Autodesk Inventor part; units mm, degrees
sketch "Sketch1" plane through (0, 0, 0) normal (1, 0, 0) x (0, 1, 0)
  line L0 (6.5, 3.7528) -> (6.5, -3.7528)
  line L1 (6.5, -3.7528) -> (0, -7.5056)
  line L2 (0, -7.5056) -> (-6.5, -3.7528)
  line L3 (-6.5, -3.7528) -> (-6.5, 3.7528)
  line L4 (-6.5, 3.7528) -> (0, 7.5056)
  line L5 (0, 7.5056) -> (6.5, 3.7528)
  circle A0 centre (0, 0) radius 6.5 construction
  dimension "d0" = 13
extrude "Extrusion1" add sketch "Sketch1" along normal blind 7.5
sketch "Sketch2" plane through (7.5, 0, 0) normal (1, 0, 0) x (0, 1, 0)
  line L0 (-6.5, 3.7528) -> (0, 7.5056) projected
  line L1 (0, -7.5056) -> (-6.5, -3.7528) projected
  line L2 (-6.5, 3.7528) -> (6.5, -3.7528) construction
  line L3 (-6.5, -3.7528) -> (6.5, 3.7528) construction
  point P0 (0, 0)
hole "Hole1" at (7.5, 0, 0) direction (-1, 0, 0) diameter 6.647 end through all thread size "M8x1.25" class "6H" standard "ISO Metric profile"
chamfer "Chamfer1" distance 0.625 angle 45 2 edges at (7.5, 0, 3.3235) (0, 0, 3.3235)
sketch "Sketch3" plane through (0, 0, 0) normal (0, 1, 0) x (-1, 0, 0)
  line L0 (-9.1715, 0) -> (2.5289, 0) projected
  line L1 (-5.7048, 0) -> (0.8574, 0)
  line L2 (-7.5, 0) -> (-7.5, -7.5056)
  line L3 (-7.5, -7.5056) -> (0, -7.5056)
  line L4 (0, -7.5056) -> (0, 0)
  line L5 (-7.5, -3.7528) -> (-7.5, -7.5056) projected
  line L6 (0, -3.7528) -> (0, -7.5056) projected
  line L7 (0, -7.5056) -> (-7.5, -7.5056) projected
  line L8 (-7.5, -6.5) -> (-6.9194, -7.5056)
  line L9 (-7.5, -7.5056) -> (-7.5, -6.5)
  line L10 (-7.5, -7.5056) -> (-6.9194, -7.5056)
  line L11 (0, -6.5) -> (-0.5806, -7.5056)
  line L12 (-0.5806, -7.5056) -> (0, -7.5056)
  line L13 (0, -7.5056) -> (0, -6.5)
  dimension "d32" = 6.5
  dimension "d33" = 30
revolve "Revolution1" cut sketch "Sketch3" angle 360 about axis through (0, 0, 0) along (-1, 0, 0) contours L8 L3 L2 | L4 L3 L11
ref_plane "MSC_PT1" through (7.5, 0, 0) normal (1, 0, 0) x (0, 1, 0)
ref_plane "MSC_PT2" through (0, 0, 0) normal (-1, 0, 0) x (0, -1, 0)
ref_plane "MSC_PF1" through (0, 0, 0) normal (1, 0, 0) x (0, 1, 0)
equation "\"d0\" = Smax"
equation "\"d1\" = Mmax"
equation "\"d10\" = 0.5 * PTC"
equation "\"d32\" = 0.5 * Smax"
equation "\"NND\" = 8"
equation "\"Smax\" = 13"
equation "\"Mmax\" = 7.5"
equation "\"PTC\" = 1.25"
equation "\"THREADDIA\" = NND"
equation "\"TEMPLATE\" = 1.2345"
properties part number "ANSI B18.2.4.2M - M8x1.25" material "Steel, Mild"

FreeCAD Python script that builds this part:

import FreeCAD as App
import Part
import Sketcher

V = App.Vector
Q = App.Units.Quantity


def edges_at(feature, points):
    """Names of the edges that pass closest to the given points."""
    edges = feature.Shape.Edges
    near = lambda p: min(range(len(edges)), key=lambda i: edges[i].distToShape(Part.Vertex(*p))[0])
    return sorted({f"Edge{near(p) + 1}" for p in points})

doc = App.newDocument("Part")
body = doc.addObject("PartDesign::Body", "Body")

# Sketch on YZ plane
sketch1 = body.newObject("Sketcher::SketchObject", "Sketch")
sketch1.AttachmentSupport = (doc.getObject("YZ_Plane"), [""])
sketch1.MapMode = "FlatFace"
sketch1.addGeometry(Part.LineSegment(V(6, -4, 0), V(6, 4, 0)), False)
sketch1.addGeometry(Part.LineSegment(V(6, 4, 0), V(0, 8, 0)), False)
sketch1.addGeometry(Part.LineSegment(V(0, 8, 0), V(-6, 4, 0)), False)
sketch1.addGeometry(Part.LineSegment(V(-6, 4, 0), V(-6, -4, 0)), False)
sketch1.addGeometry(Part.LineSegment(V(-6, -4, 0), V(0, -8, 0)), False)
sketch1.addGeometry(Part.LineSegment(V(0, -8, 0), V(6, -4, 0)), False)
sketch1.addConstraint(Sketcher.Constraint("Coincident", 0, 2, 1, 1))
sketch1.addConstraint(Sketcher.Constraint("Coincident", 1, 2, 2, 1))
sketch1.addConstraint(Sketcher.Constraint("Coincident", 2, 2, 3, 1))
sketch1.addConstraint(Sketcher.Constraint("Coincident", 3, 2, 4, 1))
sketch1.addConstraint(Sketcher.Constraint("Coincident", 4, 2, 5, 1))
sketch1.addConstraint(Sketcher.Constraint("Coincident", 5, 2, 0, 1))
sketch1.addConstraint(Sketcher.Constraint("Vertical", 0))
sketch1.addConstraint(Sketcher.Constraint("Vertical", 3))
sketch1.addConstraint(Sketcher.Constraint("Symmetric", 0, 2, 3, 2, -1, 1))
sketch1.addConstraint(Sketcher.Constraint("Symmetric", 1, 2, 4, 2, -1, 1))
sketch1.addConstraint(Sketcher.Constraint("PointOnObject", 1, 2, -2))
sketch1.addConstraint(Sketcher.Constraint("Parallel", 2, 5))
sketch1.addConstraint(Sketcher.Constraint("Horizontal", 0, 2, 2, 2))
sketch1.addConstraint(Sketcher.Constraint("DistanceX", 2, 2, 0, 2, Q("13 mm")))
sketch1.addConstraint(Sketcher.Constraint("Angle", 1, Q("149.9998 deg")))
sketch1.addConstraint(Sketcher.Constraint("DistanceY", 0, 1, 0, 2, Q("7.5056 mm")))
pad1 = body.newObject("PartDesign::Pad", "Pad")
pad1.Profile = sketch1
pad1.Length = 7.5

# Sketch on YZ plane
sketch2 = body.newObject("Sketcher::SketchObject", "Sketch001")
sketch2.AttachmentSupport = (doc.getObject("YZ_Plane"), [""])
sketch2.MapMode = "FlatFace"
sketch2.AttachmentOffset = App.Placement(V(0, 0, 7.5), App.Rotation())
sketch2.addGeometry(Part.Circle(V(0, 0, 0), V(0, 0, 1), 3.3), False)
sketch2.addConstraint(Sketcher.Constraint("Coincident", 0, 3, -1, 1))
sketch2.addConstraint(Sketcher.Constraint("Diameter", 0, Q("6.647 mm")))
doc.recompute()
hole = body.newObject("PartDesign::Hole", "Hole")
hole.Profile = sketch2
hole.ThreadType = "None"
hole.Diameter = 6.647
hole.DepthType = "ThroughAll"
doc.recompute()

chamfer = body.newObject("PartDesign::Chamfer", "Chamfer")
chamfer.Base = (hole, edges_at(hole, [(7.5, 0, 3.324), (0, 0, 3.324)]))
chamfer.Size = 0.625

# Sketch on XZ plane
sketch3 = body.newObject("Sketcher::SketchObject", "Sketch002")
sketch3.AttachmentSupport = (doc.getObject("XZ_Plane"), [""])
sketch3.MapMode = "FlatFace"
sketch3.addGeometry(Part.LineSegment(V(6.9, -7.5, 0), V(7.5, -6.5, 0)), False)
sketch3.addGeometry(Part.LineSegment(V(7.5, -6.5, 0), V(7.5, -7.5, 0)), False)
sketch3.addGeometry(Part.LineSegment(V(7.5, -7.5, 0), V(6.9, -7.5, 0)), False)
sketch3.addGeometry(Part.LineSegment(V(0, -7.5, 0), V(0, -6.5, 0)), False)
sketch3.addGeometry(Part.LineSegment(V(0, -6.5, 0), V(0.6, -7.5, 0)), False)
sketch3.addGeometry(Part.LineSegment(V(0.6, -7.5, 0), V(0, -7.5, 0)), False)
sketch3.addConstraint(Sketcher.Constraint("Coincident", 0, 2, 1, 1))
sketch3.addConstraint(Sketcher.Constraint("Coincident", 1, 2, 2, 1))
sketch3.addConstraint(Sketcher.Constraint("Coincident", 2, 2, 0, 1))
sketch3.addConstraint(Sketcher.Constraint("Coincident", 3, 2, 4, 1))
sketch3.addConstraint(Sketcher.Constraint("Coincident", 4, 2, 5, 1))
sketch3.addConstraint(Sketcher.Constraint("Coincident", 5, 2, 3, 1))
sketch3.addConstraint(Sketcher.Constraint("Vertical", 1))
sketch3.addConstraint(Sketcher.Constraint("Horizontal", 2))
sketch3.addConstraint(Sketcher.Constraint("Vertical", 3))
sketch3.addConstraint(Sketcher.Constraint("Horizontal", 5))
sketch3.addConstraint(Sketcher.Constraint("PointOnObject", 3, 2, -2))
sketch3.addConstraint(Sketcher.Constraint("Horizontal", 0, 2, 3, 2))
sketch3.addConstraint(Sketcher.Constraint("Horizontal", 2, 2, 4, 2))
sketch3.addConstraint(Sketcher.Constraint("Equal", 2, 5))
sketch3.addConstraint(Sketcher.Constraint("DistanceY", 0, 2, -1, 1, Q("6.5 mm")))
sketch3.addConstraint(Sketcher.Constraint("Angle", 0, Q("59.9993 deg")))
sketch3.addConstraint(Sketcher.Constraint("DistanceX", -1, 1, 0, 2, Q("7.5 mm")))
sketch3.addConstraint(Sketcher.Constraint("DistanceX", 2, 2, 2, 1, Q("0.5806 mm")))
groove = body.newObject("PartDesign::Groove", "Groove")
groove.Profile = sketch3
groove.ReferenceAxis = (sketch3, ["H_Axis"])
groove.Angle = 360

doc.recompute()
